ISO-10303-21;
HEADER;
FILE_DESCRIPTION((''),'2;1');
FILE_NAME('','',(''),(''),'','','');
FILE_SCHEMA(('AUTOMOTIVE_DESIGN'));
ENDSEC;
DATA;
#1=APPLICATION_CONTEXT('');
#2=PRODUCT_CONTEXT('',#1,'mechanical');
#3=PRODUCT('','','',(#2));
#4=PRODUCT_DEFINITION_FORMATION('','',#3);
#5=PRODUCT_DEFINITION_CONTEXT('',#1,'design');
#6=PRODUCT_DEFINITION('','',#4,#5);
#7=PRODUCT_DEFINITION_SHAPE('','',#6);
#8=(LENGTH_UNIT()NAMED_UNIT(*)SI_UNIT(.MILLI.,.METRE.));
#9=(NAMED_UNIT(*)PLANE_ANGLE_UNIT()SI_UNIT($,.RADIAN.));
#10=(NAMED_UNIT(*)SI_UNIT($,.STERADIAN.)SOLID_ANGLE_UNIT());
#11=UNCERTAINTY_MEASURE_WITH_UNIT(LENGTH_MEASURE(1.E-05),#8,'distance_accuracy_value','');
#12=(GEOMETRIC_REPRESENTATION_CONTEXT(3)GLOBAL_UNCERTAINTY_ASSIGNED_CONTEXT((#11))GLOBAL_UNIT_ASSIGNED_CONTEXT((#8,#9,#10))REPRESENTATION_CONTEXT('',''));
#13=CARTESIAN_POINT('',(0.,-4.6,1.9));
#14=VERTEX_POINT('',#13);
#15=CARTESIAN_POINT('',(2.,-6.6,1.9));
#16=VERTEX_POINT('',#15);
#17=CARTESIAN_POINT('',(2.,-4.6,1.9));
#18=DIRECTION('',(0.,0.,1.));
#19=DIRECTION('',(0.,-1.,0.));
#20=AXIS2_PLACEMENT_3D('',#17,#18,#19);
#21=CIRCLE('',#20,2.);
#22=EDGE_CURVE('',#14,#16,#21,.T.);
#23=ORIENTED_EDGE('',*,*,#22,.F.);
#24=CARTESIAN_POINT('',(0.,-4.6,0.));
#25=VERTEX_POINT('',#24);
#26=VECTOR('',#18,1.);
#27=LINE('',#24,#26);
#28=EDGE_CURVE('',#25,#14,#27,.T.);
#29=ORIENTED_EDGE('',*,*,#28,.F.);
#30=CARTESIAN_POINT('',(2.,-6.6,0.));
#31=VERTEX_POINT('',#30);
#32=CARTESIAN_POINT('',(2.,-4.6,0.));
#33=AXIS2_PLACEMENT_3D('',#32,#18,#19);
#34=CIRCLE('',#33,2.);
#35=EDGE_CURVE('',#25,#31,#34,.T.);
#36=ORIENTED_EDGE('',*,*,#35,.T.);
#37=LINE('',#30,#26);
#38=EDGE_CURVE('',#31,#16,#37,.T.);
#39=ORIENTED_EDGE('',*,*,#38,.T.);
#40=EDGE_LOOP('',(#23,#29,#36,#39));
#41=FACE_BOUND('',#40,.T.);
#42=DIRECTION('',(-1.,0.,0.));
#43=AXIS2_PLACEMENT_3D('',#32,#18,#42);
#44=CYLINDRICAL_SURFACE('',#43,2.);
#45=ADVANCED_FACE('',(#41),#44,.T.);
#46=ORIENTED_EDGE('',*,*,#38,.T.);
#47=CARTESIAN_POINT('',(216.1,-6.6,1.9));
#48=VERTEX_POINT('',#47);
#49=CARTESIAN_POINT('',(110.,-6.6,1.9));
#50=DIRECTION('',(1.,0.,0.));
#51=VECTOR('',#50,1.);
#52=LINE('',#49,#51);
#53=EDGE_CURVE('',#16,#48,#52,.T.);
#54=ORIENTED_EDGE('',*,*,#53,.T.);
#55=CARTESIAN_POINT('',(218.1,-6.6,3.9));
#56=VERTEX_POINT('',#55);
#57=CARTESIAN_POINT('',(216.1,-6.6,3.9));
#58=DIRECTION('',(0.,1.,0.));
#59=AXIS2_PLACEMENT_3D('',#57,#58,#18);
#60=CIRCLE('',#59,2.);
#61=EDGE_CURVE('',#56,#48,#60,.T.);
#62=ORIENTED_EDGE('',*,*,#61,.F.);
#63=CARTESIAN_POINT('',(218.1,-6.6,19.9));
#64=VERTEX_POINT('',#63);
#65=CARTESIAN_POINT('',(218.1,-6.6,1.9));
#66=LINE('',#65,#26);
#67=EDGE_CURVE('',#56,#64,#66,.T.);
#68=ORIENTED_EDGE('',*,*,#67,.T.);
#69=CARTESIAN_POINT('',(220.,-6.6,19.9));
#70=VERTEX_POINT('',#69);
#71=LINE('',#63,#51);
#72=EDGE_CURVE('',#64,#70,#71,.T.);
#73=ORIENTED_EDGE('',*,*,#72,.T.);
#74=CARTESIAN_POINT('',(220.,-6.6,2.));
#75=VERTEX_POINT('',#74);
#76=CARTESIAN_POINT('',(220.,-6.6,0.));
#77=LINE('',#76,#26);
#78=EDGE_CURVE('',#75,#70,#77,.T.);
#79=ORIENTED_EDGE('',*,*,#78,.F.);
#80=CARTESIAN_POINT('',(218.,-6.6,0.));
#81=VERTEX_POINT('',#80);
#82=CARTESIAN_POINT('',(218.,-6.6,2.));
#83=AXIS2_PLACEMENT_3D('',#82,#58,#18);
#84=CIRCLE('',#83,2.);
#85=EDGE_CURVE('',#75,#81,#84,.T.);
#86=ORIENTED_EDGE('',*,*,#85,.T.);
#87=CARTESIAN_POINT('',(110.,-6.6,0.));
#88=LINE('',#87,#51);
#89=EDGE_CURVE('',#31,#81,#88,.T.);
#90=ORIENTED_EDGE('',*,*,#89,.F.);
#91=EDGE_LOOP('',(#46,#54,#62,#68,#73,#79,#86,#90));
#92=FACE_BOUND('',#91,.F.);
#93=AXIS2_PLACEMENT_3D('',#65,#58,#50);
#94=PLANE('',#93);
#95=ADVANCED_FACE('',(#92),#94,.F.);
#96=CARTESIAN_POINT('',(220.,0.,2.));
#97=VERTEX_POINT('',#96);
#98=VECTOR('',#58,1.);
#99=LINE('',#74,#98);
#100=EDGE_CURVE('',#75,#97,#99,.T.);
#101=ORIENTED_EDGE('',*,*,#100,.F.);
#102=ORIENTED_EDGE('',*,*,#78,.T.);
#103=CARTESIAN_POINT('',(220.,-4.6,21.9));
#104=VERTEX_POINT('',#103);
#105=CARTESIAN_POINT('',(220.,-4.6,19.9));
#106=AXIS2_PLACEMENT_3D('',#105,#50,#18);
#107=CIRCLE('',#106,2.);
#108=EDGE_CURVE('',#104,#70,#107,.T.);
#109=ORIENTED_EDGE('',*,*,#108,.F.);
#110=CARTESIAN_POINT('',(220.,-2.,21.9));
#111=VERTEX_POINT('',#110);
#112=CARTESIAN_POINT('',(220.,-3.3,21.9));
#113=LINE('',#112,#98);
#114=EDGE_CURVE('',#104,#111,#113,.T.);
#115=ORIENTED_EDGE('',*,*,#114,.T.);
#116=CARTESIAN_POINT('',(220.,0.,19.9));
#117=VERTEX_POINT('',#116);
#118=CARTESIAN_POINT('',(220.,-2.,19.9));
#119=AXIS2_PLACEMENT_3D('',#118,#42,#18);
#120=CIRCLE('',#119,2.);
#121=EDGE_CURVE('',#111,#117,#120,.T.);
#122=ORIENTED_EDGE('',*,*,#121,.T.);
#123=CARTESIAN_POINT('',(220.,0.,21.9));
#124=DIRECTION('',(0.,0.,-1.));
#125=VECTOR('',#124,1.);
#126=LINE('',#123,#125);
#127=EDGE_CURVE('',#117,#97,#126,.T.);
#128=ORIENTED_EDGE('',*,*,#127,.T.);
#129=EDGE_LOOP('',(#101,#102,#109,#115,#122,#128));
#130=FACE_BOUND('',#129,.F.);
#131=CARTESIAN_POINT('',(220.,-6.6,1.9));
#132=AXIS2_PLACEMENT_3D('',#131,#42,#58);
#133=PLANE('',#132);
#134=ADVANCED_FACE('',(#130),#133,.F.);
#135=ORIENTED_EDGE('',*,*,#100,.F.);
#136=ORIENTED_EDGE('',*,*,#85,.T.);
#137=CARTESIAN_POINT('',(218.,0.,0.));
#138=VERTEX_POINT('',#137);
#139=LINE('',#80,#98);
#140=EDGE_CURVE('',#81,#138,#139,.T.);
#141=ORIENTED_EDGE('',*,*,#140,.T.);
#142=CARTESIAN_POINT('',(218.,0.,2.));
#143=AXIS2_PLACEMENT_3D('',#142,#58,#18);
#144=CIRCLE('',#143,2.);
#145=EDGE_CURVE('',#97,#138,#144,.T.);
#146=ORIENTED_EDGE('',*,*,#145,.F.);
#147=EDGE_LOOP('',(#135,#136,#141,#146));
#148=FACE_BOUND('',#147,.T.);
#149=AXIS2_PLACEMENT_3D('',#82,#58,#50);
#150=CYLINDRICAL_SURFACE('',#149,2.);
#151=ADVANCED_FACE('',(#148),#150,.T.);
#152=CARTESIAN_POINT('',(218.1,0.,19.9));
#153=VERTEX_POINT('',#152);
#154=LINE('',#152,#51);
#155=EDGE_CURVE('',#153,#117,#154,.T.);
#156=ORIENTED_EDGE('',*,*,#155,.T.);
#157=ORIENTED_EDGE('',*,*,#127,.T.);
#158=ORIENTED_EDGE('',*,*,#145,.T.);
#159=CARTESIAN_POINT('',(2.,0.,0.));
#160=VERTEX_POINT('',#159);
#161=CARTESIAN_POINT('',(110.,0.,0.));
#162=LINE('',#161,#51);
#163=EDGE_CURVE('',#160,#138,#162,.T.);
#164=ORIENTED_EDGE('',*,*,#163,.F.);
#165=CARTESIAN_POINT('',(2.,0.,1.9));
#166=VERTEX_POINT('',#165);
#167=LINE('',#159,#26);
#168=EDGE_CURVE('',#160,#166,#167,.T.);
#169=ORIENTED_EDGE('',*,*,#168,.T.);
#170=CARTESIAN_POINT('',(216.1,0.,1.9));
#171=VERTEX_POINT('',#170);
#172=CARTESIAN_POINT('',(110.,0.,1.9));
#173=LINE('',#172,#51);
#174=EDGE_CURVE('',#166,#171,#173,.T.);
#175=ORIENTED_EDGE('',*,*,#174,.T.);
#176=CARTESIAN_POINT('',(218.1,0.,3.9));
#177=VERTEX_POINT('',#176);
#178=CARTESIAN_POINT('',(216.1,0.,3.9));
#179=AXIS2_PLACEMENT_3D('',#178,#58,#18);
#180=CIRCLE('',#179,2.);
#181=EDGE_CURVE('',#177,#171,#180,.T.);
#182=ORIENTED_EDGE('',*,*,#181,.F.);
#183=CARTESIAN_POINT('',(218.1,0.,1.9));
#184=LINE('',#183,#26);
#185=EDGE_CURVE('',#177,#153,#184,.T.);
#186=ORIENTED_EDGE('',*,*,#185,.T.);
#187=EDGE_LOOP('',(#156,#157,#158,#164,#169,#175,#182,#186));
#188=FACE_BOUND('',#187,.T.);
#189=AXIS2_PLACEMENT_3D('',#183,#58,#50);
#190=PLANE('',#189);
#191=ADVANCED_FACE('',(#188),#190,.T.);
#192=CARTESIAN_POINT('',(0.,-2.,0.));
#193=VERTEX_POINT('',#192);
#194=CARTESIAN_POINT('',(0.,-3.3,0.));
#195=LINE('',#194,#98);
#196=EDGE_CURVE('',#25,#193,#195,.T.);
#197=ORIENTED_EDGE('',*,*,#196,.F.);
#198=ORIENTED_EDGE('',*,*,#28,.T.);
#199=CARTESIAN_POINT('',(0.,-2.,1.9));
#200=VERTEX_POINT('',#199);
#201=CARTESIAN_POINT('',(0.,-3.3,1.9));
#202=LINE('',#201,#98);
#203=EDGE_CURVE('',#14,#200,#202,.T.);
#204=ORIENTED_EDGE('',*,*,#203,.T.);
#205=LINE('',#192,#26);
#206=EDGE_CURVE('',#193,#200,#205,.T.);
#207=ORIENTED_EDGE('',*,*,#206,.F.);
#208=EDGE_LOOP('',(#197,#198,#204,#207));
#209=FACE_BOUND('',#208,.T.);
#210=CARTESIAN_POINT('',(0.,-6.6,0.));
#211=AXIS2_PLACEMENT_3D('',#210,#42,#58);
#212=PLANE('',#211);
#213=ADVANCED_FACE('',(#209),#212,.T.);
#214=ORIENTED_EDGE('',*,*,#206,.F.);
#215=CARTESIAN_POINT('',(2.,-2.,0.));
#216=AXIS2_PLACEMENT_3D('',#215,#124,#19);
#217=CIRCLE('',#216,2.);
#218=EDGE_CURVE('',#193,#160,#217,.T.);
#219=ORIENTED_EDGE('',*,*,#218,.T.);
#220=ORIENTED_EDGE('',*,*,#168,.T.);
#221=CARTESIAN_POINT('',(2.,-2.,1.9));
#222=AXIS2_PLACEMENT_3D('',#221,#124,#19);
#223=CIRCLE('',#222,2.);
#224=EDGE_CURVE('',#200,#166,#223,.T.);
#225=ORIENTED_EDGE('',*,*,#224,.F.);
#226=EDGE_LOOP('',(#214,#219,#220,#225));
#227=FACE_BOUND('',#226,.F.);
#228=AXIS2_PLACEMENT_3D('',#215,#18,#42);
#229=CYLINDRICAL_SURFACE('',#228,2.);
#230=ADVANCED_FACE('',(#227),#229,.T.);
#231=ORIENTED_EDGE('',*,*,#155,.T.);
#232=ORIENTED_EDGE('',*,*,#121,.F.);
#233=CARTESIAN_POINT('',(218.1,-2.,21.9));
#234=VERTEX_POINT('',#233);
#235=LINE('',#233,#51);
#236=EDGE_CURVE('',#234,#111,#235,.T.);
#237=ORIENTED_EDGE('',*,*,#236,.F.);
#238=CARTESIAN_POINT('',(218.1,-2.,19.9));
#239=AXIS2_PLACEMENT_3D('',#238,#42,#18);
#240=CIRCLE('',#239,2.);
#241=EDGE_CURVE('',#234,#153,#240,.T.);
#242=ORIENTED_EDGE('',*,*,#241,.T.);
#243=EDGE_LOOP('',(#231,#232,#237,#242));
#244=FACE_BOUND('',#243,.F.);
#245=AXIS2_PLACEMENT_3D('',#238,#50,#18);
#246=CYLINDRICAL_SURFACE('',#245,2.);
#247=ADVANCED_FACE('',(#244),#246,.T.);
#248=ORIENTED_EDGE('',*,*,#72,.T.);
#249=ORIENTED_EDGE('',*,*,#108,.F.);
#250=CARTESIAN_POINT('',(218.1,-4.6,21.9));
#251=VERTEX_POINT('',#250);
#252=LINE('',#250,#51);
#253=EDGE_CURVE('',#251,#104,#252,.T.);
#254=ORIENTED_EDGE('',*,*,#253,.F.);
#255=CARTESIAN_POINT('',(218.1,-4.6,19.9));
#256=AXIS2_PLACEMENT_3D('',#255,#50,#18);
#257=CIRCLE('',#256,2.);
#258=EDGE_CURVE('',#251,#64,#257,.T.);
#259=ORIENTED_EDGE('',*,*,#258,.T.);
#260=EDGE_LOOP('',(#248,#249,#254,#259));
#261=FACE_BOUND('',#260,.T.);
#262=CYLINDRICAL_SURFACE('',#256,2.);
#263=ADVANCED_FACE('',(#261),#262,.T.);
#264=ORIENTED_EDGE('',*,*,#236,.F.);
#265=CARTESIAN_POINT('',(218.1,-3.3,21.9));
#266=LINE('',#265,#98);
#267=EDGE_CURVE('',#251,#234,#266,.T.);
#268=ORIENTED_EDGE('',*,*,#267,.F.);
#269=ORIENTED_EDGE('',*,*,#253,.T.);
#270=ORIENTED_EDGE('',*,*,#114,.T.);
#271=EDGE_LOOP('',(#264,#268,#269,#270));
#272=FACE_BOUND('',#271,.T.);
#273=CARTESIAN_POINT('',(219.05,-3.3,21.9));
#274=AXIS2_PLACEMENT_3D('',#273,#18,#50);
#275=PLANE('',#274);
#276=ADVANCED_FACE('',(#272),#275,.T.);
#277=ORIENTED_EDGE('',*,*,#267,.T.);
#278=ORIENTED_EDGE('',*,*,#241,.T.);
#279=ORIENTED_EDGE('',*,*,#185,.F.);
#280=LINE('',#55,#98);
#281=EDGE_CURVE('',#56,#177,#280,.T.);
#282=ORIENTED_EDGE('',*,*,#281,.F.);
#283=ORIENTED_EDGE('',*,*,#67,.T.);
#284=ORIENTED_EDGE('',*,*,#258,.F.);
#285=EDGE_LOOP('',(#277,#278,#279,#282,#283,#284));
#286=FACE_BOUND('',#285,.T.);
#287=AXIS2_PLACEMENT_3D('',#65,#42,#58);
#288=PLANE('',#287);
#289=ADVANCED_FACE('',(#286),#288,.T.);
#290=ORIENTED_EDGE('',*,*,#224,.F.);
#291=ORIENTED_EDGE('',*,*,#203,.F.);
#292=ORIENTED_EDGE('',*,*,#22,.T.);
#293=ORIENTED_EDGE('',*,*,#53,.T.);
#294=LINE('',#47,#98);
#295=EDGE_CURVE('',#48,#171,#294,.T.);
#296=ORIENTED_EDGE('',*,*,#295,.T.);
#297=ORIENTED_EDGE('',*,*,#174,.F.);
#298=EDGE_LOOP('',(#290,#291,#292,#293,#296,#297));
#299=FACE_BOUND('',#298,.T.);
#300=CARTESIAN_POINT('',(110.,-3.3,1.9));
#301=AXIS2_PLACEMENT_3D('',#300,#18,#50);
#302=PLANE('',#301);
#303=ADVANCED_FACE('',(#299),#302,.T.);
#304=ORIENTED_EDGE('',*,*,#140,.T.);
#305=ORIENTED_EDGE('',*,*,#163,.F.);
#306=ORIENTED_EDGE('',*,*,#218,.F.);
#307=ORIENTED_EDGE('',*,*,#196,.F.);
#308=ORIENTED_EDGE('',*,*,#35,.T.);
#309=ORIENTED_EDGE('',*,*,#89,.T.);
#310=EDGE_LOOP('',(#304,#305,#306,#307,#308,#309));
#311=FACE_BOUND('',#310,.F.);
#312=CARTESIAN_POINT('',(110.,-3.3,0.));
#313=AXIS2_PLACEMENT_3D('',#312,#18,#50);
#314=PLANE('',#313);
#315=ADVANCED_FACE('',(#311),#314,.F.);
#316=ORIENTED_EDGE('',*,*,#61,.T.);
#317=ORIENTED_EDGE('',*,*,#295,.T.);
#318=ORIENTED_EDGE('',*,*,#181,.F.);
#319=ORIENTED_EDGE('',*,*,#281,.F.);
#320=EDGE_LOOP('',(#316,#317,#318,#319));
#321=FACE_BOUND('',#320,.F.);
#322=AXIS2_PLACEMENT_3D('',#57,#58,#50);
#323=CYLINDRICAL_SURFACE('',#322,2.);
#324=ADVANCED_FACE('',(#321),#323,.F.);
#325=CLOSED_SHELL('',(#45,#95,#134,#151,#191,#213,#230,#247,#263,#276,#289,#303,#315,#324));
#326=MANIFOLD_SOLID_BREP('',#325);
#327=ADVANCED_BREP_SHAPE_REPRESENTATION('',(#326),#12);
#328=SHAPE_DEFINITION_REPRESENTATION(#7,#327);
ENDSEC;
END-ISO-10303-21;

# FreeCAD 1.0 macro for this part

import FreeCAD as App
import Part
import Sketcher
from FreeCAD import Vector


def edges_at(feature, points):
    """Names of the edges that pass closest to the given points."""
    edges = feature.Shape.Edges
    near = lambda p: min(range(len(edges)), key=lambda i: edges[i].distToShape(Part.Vertex(*p))[0])
    return sorted({f"Edge{near(p) + 1}" for p in points})


def add_polygon(sketch, points):
    """Adds a closed chain of lines whose ends are joined by coincident constraints."""
    first, n = sketch.GeometryCount, len(points)
    for a, b in zip(points, points[1:] + points[:1]):
        sketch.addGeometry(Part.LineSegment(App.Vector(*a, 0), App.Vector(*b, 0)), False)
    for i in range(n):
        sketch.addConstraint(Sketcher.Constraint("Coincident", first + i, 2, first + (i + 1) % n, 1))

doc = App.newDocument("Part")
body = doc.addObject("PartDesign::Body", "Body")

# Sketch on XY plane
sketch1 = doc.addObject("Sketcher::SketchObject", "Sketch")
body.addObject(sketch1)
sketch1.AttachmentSupport = (doc.XY_Plane, [""])
sketch1.MapMode = "FlatFace"
add_polygon(sketch1, [(0, 0), (0, -7), (220, -7), (220, 0)])  # lines 0-3
sketch1.addConstraint([
    Sketcher.Constraint("Vertical", 0),
    Sketcher.Constraint("Horizontal", 1),
    Sketcher.Constraint("Vertical", 2),
    Sketcher.Constraint("Horizontal", 3),
    Sketcher.Constraint("Coincident", 3, 2, -1, 1),
    Sketcher.Constraint("DistanceX", 1, 1, 1, 2, 220.0),
    Sketcher.Constraint("DistanceY", 0, 2, 0, 1, 6.6),
])
pad1 = doc.addObject("PartDesign::Pad", "Pad")
body.addObject(pad1)
pad1.Profile = sketch1
pad1.Length = 1.9

# Sketch on XY plane
sketch2 = doc.addObject("Sketcher::SketchObject", "Sketch001")
body.addObject(sketch2)
sketch2.AttachmentSupport = (doc.XY_Plane, [""])
sketch2.MapMode = "FlatFace"
sketch2.AttachmentOffset = App.Placement(Vector(0, 0, 1.9), App.Rotation())
add_polygon(sketch2, [(218.1, 0), (218.1, -6.6), (220, -6.6), (220, 0)])  # lines 0-3
sketch2.addConstraint([
    Sketcher.Constraint("Vertical", 0),
    Sketcher.Constraint("Horizontal", 1),
    Sketcher.Constraint("Vertical", 2),
    Sketcher.Constraint("Horizontal", 3),
    Sketcher.Constraint("PointOnObject", 2, 2, -1),
    Sketcher.Constraint("DistanceX", 1, 1, 1, 2, 1.9),
    Sketcher.Constraint("DistanceY", 0, 2, 0, 1, 6.6),
    Sketcher.Constraint("DistanceX", -1, 1, 1, 2, 220.0),
])
pad2 = doc.addObject("PartDesign::Pad", "Pad001")
body.addObject(pad2)
pad2.Profile = sketch2
pad2.Length = 20
doc.recompute()

fillet = doc.addObject("PartDesign::Fillet", "Fillet")
body.addObject(fillet)
fillet.Base = (pad2, edges_at(pad2, [
    (220, -3.3, 0),
    (218.1, -3.3, 1.9),
    (219.05, -6.6, 21.9),
    (219.05, 0, 21.9),
    (0, -6.6, 0.95),
    (0, 0, 0.95),
]))
fillet.Radius = 2

doc.recompute()
